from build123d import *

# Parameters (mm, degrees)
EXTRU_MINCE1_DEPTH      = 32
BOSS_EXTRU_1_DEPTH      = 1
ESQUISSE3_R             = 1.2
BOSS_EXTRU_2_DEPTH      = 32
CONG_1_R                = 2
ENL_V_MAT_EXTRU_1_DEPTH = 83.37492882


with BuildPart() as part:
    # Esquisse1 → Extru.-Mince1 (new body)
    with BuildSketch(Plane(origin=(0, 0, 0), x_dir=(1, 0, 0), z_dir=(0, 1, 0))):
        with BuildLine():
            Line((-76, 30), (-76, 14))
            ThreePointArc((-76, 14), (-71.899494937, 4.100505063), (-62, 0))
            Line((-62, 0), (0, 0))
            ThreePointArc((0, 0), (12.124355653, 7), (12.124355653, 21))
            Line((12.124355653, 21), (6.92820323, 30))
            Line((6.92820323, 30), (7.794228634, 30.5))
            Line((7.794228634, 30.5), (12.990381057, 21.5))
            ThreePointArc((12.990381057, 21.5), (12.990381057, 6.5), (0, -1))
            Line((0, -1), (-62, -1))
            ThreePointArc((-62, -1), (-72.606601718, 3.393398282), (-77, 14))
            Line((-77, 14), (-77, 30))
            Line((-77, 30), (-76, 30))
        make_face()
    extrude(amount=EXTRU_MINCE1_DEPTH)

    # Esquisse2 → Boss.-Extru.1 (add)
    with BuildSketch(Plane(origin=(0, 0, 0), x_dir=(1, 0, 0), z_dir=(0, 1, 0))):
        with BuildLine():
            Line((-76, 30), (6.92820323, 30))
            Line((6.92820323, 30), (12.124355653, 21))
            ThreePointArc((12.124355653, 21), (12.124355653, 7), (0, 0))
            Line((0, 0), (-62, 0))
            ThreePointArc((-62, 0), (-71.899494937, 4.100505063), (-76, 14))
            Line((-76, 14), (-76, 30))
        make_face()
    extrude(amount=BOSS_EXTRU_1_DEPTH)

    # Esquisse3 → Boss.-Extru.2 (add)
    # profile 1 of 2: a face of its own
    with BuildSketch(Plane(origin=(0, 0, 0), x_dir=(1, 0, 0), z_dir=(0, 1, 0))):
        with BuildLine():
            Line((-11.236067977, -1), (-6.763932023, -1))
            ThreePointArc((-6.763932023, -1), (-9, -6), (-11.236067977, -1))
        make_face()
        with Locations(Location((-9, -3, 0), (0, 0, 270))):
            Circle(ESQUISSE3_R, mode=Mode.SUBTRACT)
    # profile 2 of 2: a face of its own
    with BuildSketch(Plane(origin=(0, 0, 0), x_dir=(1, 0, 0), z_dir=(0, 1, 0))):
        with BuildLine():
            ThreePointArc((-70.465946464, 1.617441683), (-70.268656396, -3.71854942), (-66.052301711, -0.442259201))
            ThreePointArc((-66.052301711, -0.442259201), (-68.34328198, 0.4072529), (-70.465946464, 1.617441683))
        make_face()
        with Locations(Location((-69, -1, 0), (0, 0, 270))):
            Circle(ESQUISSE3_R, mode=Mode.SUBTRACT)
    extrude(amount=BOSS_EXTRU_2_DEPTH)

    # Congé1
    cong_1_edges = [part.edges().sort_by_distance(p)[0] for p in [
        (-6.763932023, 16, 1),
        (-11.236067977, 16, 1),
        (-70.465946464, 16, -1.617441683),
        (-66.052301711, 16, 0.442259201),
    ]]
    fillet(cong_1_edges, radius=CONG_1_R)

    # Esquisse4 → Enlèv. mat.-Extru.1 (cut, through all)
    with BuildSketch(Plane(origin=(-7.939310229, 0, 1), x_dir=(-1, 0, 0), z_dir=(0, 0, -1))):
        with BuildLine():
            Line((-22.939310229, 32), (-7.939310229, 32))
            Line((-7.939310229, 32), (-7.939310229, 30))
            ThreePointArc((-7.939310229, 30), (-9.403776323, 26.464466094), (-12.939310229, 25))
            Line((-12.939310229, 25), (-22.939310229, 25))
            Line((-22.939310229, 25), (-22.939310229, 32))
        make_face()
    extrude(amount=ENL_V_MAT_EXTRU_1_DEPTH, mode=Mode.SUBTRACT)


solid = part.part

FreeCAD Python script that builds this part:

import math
import FreeCAD as App
import Part
import Sketcher

V = App.Vector
Q = App.Units.Quantity


def edges_at(feature, points):
    """Names of the edges that pass closest to the given points."""
    edges = feature.Shape.Edges
    near = lambda p: min(range(len(edges)), key=lambda i: edges[i].distToShape(Part.Vertex(*p))[0])
    return sorted({f"Edge{near(p) + 1}" for p in points})

doc = App.newDocument("Part")
body = doc.addObject("PartDesign::Body", "Body")

# Sketch on XZ plane
sketch1 = doc.addObject("Sketcher::SketchObject", "Sketch")
body.addObject(sketch1)
sketch1.AttachmentSupport = (doc.XZ_Plane, [""])
sketch1.MapMode = "FlatFace"
sketch1.addGeometry(Part.LineSegment(V(-76, -14, 0), V(-76, -30, 0)), False)
sketch1.addGeometry(Part.LineSegment(V(-76, -30, 0), V(-77, -30, 0)), False)
sketch1.addGeometry(Part.LineSegment(V(-77, -30, 0), V(-77, -14, 0)), False)
sketch1.addGeometry(Part.ArcOfCircle(Part.Circle(V(-62, -14, 0), V(0, 0, 1), 15), math.radians(90), math.radians(180)), False)
sketch1.addGeometry(Part.LineSegment(V(-62, 1, 0), V(0, 1, 0)), False)
sketch1.addGeometry(Part.ArcOfCircle(Part.Circle(V(0, -14, 0), V(0, 0, 1), 15), math.radians(-30), math.radians(90)), False)
sketch1.addGeometry(Part.LineSegment(V(13, -21.5, 0), V(7.8, -30.5, 0)), False)
sketch1.addGeometry(Part.LineSegment(V(7.8, -30.5, 0), V(6.9, -30, 0)), False)
sketch1.addGeometry(Part.LineSegment(V(6.9, -30, 0), V(12.1, -21, 0)), False)
sketch1.addGeometry(Part.ArcOfCircle(Part.Circle(V(0, -14, 0), V(0, 0, 1), 14), math.radians(-30), math.radians(90)), False)
sketch1.addGeometry(Part.LineSegment(V(0, 0, 0), V(-62, 0, 0)), False)
sketch1.addGeometry(Part.ArcOfCircle(Part.Circle(V(-62, -14, 0), V(0, 0, 1), 14), math.radians(90), math.radians(180)), False)
sketch1.addConstraint(Sketcher.Constraint("Coincident", 0, 2, 1, 1))
sketch1.addConstraint(Sketcher.Constraint("Coincident", 1, 2, 2, 1))
sketch1.addConstraint(Sketcher.Constraint("Tangent", 2, 2, 3, 2))
sketch1.addConstraint(Sketcher.Constraint("Tangent", 3, 1, 4, 1))
sketch1.addConstraint(Sketcher.Constraint("Tangent", 4, 2, 5, 2))
sketch1.addConstraint(Sketcher.Constraint("Tangent", 5, 1, 6, 1))
sketch1.addConstraint(Sketcher.Constraint("Coincident", 6, 2, 7, 1))
sketch1.addConstraint(Sketcher.Constraint("Coincident", 7, 2, 8, 1))
sketch1.addConstraint(Sketcher.Constraint("Tangent", 8, 2, 9, 1))
sketch1.addConstraint(Sketcher.Constraint("Tangent", 9, 2, 10, 1))
sketch1.addConstraint(Sketcher.Constraint("Tangent", 10, 2, 11, 1))
sketch1.addConstraint(Sketcher.Constraint("Tangent", 11, 2, 0, 1))
sketch1.addConstraint(Sketcher.Constraint("Vertical", 0))
sketch1.addConstraint(Sketcher.Constraint("Horizontal", 1))
sketch1.addConstraint(Sketcher.Constraint("Vertical", 2))
sketch1.addConstraint(Sketcher.Constraint("Horizontal", 4))
sketch1.addConstraint(Sketcher.Constraint("Horizontal", 10))
sketch1.addConstraint(Sketcher.Constraint("Coincident", 9, 2, -1, 1))
sketch1.addConstraint(Sketcher.Constraint("Coincident", 9, 3, 5, 3))
sketch1.addConstraint(Sketcher.Constraint("Coincident", 11, 3, 3, 3))
sketch1.addConstraint(Sketcher.Constraint("Equal", 3, 5))
sketch1.addConstraint(Sketcher.Constraint("Perpendicular", 6, 7))
sketch1.addConstraint(Sketcher.Constraint("Perpendicular", 7, 8))
sketch1.addConstraint(Sketcher.Constraint("Horizontal", 1, 2, 7, 2))
sketch1.addConstraint(Sketcher.Constraint("Radius", 3, 15.0))
sketch1.addConstraint(Sketcher.Constraint("Radius", 9, 14.0))
sketch1.addConstraint(Sketcher.Constraint("DistanceX", 4, 1, 4, 2, 62.0))
sketch1.addConstraint(Sketcher.Constraint("DistanceY", 0, 2, 0, 1, 16.0))
sketch1.addConstraint(Sketcher.Constraint("Angle", 6, Q("-120 deg")))
pad1 = doc.addObject("PartDesign::Pad", "Pad")
body.addObject(pad1)
pad1.Profile = sketch1
pad1.Length = 32
pad1.Reversed = True

# Sketch on XZ plane
sketch2 = doc.addObject("Sketcher::SketchObject", "Sketch001")
body.addObject(sketch2)
sketch2.AttachmentSupport = (doc.XZ_Plane, [""])
sketch2.MapMode = "FlatFace"
sketch2.addGeometry(Part.LineSegment(V(7, -30, 0), V(-76, -30, 0)), False)
sketch2.addGeometry(Part.LineSegment(V(-76, -30, 0), V(-76, -14, 0)), False)
sketch2.addGeometry(Part.ArcOfCircle(Part.Circle(V(-62, -14, 0), V(0, 0, 1), 14), math.radians(90), math.radians(180)), False)
sketch2.addGeometry(Part.LineSegment(V(-62, 0, 0), V(0, 0, 0)), False)
sketch2.addGeometry(Part.ArcOfCircle(Part.Circle(V(0, -14, 0), V(0, 0, 1), 14), math.radians(-30), math.radians(90)), False)
sketch2.addGeometry(Part.LineSegment(V(12, -21, 0), V(7, -30, 0)), False)
sketch2.addConstraint(Sketcher.Constraint("Coincident", 0, 2, 1, 1))
sketch2.addConstraint(Sketcher.Constraint("Tangent", 1, 2, 2, 2))
sketch2.addConstraint(Sketcher.Constraint("Tangent", 2, 1, 3, 1))
sketch2.addConstraint(Sketcher.Constraint("Tangent", 3, 2, 4, 2))
sketch2.addConstraint(Sketcher.Constraint("Tangent", 4, 1, 5, 1))
sketch2.addConstraint(Sketcher.Constraint("Coincident", 5, 2, 0, 1))
sketch2.addConstraint(Sketcher.Constraint("Horizontal", 0))
sketch2.addConstraint(Sketcher.Constraint("Vertical", 1))
sketch2.addConstraint(Sketcher.Constraint("Horizontal", 3))
sketch2.addConstraint(Sketcher.Constraint("Coincident", 3, 2, -1, 1))
sketch2.addConstraint(Sketcher.Constraint("Equal", 2, 4))
sketch2.addConstraint(Sketcher.Constraint("Radius", 2, 14.0))
sketch2.addConstraint(Sketcher.Constraint("DistanceX", 3, 1, 3, 2, 62.0))
sketch2.addConstraint(Sketcher.Constraint("DistanceY", 1, 1, 1, 2, 16.0))
sketch2.addConstraint(Sketcher.Constraint("Angle", 5, Q("-120 deg")))
pad2 = doc.addObject("PartDesign::Pad", "Pad001")
body.addObject(pad2)
pad2.Profile = sketch2
pad2.Length = 1
pad2.Reversed = True

# Sketch on XZ plane
sketch3 = doc.addObject("Sketcher::SketchObject", "Sketch002")
body.addObject(sketch3)
sketch3.AttachmentSupport = (doc.XZ_Plane, [""])
sketch3.MapMode = "FlatFace"
sketch3.addGeometry(Part.LineSegment(V(-6.8, 1, 0), V(-11.2, 1, 0)), False)
sketch3.addGeometry(Part.ArcOfCircle(Part.Circle(V(-9, 3, 0), V(0, 0, 1), 3), math.radians(-42), math.radians(222)), False)
sketch3.addGeometry(Part.Circle(V(-9, 3, 0), V(0, 0, 1), 1.2), False)
sketch3.addGeometry(Part.ArcOfCircle(Part.Circle(V(-69, 1, 0), V(0, 0, 1), 3), math.radians(-11), math.radians(241)), False)
sketch3.addGeometry(Part.ArcOfCircle(Part.Circle(V(-62, -14, 0), V(0, 0, 1), 15), math.radians(105.67), math.radians(124.36)), False)
sketch3.addGeometry(Part.Circle(V(-69, 1, 0), V(0, 0, 1), 1.2), False)
sketch3.addConstraint(Sketcher.Constraint("Coincident", 0, 1, 1, 1))
sketch3.addConstraint(Sketcher.Constraint("Coincident", 1, 2, 0, 2))
sketch3.addConstraint(Sketcher.Constraint("Coincident", 3, 1, 4, 1))
sketch3.addConstraint(Sketcher.Constraint("Coincident", 4, 2, 3, 2))
sketch3.addConstraint(Sketcher.Constraint("Horizontal", 0))
sketch3.addConstraint(Sketcher.Constraint("Coincident", 2, 3, 1, 3))
sketch3.addConstraint(Sketcher.Constraint("Coincident", 5, 3, 3, 3))
sketch3.addConstraint(Sketcher.Constraint("Equal", 1, 3))
sketch3.addConstraint(Sketcher.Constraint("Equal", 2, 5))
sketch3.addConstraint(Sketcher.Constraint("Horizontal", 5, 3, 0, 1))
sketch3.addConstraint(Sketcher.Constraint("Radius", 1, 3.0))
sketch3.addConstraint(Sketcher.Constraint("Radius", 4, 15.0))
sketch3.addConstraint(Sketcher.Constraint("Diameter", 2, 2.4))
sketch3.addConstraint(Sketcher.Constraint("DistanceX", 1, 3, -1, 1, 9.0))
sketch3.addConstraint(Sketcher.Constraint("DistanceY", -1, 1, 1, 3, 3.0))
sketch3.addConstraint(Sketcher.Constraint("DistanceX", 3, 3, -1, 1, 69.0))
sketch3.addConstraint(Sketcher.Constraint("DistanceY", -1, 1, 3, 3, 1.0))
sketch3.addConstraint(Sketcher.Constraint("DistanceX", 4, 3, -1, 1, 62.0))
sketch3.addConstraint(Sketcher.Constraint("DistanceY", 4, 3, -1, 1, 14.0))
pad3 = doc.addObject("PartDesign::Pad", "Pad002")
body.addObject(pad3)
pad3.Profile = sketch3
pad3.Length = 32
pad3.Reversed = True
doc.recompute()

fillet = doc.addObject("PartDesign::Fillet", "Fillet")
body.addObject(fillet)
fillet.Base = (pad3, edges_at(pad3, [
    (-6.764, 16, 1),
    (-11.236, 16, 1),
    (-70.466, 16, -1.617),
    (-66.052, 16, 0.442),
]))
fillet.Radius = 2

# Sketch on XY plane
sketch4 = doc.addObject("Sketcher::SketchObject", "Sketch003")
body.addObject(sketch4)
sketch4.AttachmentSupport = (doc.XY_Plane, [""])
sketch4.MapMode = "FlatFace"
sketch4.AttachmentOffset = App.Placement(V(0, 0, 1), App.Rotation())
sketch4.addGeometry(Part.LineSegment(V(0, 32, 0), V(15, 32, 0)), False)
sketch4.addGeometry(Part.LineSegment(V(15, 32, 0), V(15, 25, 0)), False)
sketch4.addGeometry(Part.LineSegment(V(15, 25, 0), V(5, 25, 0)), False)
sketch4.addGeometry(Part.ArcOfCircle(Part.Circle(V(5, 30, 0), V(0, 0, 1), 5), math.radians(180), math.radians(270)), False)
sketch4.addGeometry(Part.LineSegment(V(0, 30, 0), V(0, 32, 0)), False)
sketch4.addConstraint(Sketcher.Constraint("Coincident", 0, 2, 1, 1))
sketch4.addConstraint(Sketcher.Constraint("Coincident", 1, 2, 2, 1))
sketch4.addConstraint(Sketcher.Constraint("Tangent", 2, 2, 3, 2))
sketch4.addConstraint(Sketcher.Constraint("Tangent", 3, 1, 4, 1))
sketch4.addConstraint(Sketcher.Constraint("Coincident", 4, 2, 0, 1))
sketch4.addConstraint(Sketcher.Constraint("Horizontal", 0))
sketch4.addConstraint(Sketcher.Constraint("Vertical", 1))
sketch4.addConstraint(Sketcher.Constraint("Horizontal", 2))
sketch4.addConstraint(Sketcher.Constraint("Vertical", 4))
sketch4.addConstraint(Sketcher.Constraint("PointOnObject", 3, 1, -2))
sketch4.addConstraint(Sketcher.Constraint("Radius", 3, 5.0))
sketch4.addConstraint(Sketcher.Constraint("DistanceX", 0, 1, 0, 2, 15.0))
sketch4.addConstraint(Sketcher.Constraint("DistanceY", 1, 2, 1, 1, 7.0))
sketch4.addConstraint(Sketcher.Constraint("DistanceY", -1, 1, 3, 3, 30.0))
pocket1 = doc.addObject("PartDesign::Pocket", "Pocket")
body.addObject(pocket1)
pocket1.Profile = sketch4
pocket1.Type = "ThroughAll"

doc.recompute()
